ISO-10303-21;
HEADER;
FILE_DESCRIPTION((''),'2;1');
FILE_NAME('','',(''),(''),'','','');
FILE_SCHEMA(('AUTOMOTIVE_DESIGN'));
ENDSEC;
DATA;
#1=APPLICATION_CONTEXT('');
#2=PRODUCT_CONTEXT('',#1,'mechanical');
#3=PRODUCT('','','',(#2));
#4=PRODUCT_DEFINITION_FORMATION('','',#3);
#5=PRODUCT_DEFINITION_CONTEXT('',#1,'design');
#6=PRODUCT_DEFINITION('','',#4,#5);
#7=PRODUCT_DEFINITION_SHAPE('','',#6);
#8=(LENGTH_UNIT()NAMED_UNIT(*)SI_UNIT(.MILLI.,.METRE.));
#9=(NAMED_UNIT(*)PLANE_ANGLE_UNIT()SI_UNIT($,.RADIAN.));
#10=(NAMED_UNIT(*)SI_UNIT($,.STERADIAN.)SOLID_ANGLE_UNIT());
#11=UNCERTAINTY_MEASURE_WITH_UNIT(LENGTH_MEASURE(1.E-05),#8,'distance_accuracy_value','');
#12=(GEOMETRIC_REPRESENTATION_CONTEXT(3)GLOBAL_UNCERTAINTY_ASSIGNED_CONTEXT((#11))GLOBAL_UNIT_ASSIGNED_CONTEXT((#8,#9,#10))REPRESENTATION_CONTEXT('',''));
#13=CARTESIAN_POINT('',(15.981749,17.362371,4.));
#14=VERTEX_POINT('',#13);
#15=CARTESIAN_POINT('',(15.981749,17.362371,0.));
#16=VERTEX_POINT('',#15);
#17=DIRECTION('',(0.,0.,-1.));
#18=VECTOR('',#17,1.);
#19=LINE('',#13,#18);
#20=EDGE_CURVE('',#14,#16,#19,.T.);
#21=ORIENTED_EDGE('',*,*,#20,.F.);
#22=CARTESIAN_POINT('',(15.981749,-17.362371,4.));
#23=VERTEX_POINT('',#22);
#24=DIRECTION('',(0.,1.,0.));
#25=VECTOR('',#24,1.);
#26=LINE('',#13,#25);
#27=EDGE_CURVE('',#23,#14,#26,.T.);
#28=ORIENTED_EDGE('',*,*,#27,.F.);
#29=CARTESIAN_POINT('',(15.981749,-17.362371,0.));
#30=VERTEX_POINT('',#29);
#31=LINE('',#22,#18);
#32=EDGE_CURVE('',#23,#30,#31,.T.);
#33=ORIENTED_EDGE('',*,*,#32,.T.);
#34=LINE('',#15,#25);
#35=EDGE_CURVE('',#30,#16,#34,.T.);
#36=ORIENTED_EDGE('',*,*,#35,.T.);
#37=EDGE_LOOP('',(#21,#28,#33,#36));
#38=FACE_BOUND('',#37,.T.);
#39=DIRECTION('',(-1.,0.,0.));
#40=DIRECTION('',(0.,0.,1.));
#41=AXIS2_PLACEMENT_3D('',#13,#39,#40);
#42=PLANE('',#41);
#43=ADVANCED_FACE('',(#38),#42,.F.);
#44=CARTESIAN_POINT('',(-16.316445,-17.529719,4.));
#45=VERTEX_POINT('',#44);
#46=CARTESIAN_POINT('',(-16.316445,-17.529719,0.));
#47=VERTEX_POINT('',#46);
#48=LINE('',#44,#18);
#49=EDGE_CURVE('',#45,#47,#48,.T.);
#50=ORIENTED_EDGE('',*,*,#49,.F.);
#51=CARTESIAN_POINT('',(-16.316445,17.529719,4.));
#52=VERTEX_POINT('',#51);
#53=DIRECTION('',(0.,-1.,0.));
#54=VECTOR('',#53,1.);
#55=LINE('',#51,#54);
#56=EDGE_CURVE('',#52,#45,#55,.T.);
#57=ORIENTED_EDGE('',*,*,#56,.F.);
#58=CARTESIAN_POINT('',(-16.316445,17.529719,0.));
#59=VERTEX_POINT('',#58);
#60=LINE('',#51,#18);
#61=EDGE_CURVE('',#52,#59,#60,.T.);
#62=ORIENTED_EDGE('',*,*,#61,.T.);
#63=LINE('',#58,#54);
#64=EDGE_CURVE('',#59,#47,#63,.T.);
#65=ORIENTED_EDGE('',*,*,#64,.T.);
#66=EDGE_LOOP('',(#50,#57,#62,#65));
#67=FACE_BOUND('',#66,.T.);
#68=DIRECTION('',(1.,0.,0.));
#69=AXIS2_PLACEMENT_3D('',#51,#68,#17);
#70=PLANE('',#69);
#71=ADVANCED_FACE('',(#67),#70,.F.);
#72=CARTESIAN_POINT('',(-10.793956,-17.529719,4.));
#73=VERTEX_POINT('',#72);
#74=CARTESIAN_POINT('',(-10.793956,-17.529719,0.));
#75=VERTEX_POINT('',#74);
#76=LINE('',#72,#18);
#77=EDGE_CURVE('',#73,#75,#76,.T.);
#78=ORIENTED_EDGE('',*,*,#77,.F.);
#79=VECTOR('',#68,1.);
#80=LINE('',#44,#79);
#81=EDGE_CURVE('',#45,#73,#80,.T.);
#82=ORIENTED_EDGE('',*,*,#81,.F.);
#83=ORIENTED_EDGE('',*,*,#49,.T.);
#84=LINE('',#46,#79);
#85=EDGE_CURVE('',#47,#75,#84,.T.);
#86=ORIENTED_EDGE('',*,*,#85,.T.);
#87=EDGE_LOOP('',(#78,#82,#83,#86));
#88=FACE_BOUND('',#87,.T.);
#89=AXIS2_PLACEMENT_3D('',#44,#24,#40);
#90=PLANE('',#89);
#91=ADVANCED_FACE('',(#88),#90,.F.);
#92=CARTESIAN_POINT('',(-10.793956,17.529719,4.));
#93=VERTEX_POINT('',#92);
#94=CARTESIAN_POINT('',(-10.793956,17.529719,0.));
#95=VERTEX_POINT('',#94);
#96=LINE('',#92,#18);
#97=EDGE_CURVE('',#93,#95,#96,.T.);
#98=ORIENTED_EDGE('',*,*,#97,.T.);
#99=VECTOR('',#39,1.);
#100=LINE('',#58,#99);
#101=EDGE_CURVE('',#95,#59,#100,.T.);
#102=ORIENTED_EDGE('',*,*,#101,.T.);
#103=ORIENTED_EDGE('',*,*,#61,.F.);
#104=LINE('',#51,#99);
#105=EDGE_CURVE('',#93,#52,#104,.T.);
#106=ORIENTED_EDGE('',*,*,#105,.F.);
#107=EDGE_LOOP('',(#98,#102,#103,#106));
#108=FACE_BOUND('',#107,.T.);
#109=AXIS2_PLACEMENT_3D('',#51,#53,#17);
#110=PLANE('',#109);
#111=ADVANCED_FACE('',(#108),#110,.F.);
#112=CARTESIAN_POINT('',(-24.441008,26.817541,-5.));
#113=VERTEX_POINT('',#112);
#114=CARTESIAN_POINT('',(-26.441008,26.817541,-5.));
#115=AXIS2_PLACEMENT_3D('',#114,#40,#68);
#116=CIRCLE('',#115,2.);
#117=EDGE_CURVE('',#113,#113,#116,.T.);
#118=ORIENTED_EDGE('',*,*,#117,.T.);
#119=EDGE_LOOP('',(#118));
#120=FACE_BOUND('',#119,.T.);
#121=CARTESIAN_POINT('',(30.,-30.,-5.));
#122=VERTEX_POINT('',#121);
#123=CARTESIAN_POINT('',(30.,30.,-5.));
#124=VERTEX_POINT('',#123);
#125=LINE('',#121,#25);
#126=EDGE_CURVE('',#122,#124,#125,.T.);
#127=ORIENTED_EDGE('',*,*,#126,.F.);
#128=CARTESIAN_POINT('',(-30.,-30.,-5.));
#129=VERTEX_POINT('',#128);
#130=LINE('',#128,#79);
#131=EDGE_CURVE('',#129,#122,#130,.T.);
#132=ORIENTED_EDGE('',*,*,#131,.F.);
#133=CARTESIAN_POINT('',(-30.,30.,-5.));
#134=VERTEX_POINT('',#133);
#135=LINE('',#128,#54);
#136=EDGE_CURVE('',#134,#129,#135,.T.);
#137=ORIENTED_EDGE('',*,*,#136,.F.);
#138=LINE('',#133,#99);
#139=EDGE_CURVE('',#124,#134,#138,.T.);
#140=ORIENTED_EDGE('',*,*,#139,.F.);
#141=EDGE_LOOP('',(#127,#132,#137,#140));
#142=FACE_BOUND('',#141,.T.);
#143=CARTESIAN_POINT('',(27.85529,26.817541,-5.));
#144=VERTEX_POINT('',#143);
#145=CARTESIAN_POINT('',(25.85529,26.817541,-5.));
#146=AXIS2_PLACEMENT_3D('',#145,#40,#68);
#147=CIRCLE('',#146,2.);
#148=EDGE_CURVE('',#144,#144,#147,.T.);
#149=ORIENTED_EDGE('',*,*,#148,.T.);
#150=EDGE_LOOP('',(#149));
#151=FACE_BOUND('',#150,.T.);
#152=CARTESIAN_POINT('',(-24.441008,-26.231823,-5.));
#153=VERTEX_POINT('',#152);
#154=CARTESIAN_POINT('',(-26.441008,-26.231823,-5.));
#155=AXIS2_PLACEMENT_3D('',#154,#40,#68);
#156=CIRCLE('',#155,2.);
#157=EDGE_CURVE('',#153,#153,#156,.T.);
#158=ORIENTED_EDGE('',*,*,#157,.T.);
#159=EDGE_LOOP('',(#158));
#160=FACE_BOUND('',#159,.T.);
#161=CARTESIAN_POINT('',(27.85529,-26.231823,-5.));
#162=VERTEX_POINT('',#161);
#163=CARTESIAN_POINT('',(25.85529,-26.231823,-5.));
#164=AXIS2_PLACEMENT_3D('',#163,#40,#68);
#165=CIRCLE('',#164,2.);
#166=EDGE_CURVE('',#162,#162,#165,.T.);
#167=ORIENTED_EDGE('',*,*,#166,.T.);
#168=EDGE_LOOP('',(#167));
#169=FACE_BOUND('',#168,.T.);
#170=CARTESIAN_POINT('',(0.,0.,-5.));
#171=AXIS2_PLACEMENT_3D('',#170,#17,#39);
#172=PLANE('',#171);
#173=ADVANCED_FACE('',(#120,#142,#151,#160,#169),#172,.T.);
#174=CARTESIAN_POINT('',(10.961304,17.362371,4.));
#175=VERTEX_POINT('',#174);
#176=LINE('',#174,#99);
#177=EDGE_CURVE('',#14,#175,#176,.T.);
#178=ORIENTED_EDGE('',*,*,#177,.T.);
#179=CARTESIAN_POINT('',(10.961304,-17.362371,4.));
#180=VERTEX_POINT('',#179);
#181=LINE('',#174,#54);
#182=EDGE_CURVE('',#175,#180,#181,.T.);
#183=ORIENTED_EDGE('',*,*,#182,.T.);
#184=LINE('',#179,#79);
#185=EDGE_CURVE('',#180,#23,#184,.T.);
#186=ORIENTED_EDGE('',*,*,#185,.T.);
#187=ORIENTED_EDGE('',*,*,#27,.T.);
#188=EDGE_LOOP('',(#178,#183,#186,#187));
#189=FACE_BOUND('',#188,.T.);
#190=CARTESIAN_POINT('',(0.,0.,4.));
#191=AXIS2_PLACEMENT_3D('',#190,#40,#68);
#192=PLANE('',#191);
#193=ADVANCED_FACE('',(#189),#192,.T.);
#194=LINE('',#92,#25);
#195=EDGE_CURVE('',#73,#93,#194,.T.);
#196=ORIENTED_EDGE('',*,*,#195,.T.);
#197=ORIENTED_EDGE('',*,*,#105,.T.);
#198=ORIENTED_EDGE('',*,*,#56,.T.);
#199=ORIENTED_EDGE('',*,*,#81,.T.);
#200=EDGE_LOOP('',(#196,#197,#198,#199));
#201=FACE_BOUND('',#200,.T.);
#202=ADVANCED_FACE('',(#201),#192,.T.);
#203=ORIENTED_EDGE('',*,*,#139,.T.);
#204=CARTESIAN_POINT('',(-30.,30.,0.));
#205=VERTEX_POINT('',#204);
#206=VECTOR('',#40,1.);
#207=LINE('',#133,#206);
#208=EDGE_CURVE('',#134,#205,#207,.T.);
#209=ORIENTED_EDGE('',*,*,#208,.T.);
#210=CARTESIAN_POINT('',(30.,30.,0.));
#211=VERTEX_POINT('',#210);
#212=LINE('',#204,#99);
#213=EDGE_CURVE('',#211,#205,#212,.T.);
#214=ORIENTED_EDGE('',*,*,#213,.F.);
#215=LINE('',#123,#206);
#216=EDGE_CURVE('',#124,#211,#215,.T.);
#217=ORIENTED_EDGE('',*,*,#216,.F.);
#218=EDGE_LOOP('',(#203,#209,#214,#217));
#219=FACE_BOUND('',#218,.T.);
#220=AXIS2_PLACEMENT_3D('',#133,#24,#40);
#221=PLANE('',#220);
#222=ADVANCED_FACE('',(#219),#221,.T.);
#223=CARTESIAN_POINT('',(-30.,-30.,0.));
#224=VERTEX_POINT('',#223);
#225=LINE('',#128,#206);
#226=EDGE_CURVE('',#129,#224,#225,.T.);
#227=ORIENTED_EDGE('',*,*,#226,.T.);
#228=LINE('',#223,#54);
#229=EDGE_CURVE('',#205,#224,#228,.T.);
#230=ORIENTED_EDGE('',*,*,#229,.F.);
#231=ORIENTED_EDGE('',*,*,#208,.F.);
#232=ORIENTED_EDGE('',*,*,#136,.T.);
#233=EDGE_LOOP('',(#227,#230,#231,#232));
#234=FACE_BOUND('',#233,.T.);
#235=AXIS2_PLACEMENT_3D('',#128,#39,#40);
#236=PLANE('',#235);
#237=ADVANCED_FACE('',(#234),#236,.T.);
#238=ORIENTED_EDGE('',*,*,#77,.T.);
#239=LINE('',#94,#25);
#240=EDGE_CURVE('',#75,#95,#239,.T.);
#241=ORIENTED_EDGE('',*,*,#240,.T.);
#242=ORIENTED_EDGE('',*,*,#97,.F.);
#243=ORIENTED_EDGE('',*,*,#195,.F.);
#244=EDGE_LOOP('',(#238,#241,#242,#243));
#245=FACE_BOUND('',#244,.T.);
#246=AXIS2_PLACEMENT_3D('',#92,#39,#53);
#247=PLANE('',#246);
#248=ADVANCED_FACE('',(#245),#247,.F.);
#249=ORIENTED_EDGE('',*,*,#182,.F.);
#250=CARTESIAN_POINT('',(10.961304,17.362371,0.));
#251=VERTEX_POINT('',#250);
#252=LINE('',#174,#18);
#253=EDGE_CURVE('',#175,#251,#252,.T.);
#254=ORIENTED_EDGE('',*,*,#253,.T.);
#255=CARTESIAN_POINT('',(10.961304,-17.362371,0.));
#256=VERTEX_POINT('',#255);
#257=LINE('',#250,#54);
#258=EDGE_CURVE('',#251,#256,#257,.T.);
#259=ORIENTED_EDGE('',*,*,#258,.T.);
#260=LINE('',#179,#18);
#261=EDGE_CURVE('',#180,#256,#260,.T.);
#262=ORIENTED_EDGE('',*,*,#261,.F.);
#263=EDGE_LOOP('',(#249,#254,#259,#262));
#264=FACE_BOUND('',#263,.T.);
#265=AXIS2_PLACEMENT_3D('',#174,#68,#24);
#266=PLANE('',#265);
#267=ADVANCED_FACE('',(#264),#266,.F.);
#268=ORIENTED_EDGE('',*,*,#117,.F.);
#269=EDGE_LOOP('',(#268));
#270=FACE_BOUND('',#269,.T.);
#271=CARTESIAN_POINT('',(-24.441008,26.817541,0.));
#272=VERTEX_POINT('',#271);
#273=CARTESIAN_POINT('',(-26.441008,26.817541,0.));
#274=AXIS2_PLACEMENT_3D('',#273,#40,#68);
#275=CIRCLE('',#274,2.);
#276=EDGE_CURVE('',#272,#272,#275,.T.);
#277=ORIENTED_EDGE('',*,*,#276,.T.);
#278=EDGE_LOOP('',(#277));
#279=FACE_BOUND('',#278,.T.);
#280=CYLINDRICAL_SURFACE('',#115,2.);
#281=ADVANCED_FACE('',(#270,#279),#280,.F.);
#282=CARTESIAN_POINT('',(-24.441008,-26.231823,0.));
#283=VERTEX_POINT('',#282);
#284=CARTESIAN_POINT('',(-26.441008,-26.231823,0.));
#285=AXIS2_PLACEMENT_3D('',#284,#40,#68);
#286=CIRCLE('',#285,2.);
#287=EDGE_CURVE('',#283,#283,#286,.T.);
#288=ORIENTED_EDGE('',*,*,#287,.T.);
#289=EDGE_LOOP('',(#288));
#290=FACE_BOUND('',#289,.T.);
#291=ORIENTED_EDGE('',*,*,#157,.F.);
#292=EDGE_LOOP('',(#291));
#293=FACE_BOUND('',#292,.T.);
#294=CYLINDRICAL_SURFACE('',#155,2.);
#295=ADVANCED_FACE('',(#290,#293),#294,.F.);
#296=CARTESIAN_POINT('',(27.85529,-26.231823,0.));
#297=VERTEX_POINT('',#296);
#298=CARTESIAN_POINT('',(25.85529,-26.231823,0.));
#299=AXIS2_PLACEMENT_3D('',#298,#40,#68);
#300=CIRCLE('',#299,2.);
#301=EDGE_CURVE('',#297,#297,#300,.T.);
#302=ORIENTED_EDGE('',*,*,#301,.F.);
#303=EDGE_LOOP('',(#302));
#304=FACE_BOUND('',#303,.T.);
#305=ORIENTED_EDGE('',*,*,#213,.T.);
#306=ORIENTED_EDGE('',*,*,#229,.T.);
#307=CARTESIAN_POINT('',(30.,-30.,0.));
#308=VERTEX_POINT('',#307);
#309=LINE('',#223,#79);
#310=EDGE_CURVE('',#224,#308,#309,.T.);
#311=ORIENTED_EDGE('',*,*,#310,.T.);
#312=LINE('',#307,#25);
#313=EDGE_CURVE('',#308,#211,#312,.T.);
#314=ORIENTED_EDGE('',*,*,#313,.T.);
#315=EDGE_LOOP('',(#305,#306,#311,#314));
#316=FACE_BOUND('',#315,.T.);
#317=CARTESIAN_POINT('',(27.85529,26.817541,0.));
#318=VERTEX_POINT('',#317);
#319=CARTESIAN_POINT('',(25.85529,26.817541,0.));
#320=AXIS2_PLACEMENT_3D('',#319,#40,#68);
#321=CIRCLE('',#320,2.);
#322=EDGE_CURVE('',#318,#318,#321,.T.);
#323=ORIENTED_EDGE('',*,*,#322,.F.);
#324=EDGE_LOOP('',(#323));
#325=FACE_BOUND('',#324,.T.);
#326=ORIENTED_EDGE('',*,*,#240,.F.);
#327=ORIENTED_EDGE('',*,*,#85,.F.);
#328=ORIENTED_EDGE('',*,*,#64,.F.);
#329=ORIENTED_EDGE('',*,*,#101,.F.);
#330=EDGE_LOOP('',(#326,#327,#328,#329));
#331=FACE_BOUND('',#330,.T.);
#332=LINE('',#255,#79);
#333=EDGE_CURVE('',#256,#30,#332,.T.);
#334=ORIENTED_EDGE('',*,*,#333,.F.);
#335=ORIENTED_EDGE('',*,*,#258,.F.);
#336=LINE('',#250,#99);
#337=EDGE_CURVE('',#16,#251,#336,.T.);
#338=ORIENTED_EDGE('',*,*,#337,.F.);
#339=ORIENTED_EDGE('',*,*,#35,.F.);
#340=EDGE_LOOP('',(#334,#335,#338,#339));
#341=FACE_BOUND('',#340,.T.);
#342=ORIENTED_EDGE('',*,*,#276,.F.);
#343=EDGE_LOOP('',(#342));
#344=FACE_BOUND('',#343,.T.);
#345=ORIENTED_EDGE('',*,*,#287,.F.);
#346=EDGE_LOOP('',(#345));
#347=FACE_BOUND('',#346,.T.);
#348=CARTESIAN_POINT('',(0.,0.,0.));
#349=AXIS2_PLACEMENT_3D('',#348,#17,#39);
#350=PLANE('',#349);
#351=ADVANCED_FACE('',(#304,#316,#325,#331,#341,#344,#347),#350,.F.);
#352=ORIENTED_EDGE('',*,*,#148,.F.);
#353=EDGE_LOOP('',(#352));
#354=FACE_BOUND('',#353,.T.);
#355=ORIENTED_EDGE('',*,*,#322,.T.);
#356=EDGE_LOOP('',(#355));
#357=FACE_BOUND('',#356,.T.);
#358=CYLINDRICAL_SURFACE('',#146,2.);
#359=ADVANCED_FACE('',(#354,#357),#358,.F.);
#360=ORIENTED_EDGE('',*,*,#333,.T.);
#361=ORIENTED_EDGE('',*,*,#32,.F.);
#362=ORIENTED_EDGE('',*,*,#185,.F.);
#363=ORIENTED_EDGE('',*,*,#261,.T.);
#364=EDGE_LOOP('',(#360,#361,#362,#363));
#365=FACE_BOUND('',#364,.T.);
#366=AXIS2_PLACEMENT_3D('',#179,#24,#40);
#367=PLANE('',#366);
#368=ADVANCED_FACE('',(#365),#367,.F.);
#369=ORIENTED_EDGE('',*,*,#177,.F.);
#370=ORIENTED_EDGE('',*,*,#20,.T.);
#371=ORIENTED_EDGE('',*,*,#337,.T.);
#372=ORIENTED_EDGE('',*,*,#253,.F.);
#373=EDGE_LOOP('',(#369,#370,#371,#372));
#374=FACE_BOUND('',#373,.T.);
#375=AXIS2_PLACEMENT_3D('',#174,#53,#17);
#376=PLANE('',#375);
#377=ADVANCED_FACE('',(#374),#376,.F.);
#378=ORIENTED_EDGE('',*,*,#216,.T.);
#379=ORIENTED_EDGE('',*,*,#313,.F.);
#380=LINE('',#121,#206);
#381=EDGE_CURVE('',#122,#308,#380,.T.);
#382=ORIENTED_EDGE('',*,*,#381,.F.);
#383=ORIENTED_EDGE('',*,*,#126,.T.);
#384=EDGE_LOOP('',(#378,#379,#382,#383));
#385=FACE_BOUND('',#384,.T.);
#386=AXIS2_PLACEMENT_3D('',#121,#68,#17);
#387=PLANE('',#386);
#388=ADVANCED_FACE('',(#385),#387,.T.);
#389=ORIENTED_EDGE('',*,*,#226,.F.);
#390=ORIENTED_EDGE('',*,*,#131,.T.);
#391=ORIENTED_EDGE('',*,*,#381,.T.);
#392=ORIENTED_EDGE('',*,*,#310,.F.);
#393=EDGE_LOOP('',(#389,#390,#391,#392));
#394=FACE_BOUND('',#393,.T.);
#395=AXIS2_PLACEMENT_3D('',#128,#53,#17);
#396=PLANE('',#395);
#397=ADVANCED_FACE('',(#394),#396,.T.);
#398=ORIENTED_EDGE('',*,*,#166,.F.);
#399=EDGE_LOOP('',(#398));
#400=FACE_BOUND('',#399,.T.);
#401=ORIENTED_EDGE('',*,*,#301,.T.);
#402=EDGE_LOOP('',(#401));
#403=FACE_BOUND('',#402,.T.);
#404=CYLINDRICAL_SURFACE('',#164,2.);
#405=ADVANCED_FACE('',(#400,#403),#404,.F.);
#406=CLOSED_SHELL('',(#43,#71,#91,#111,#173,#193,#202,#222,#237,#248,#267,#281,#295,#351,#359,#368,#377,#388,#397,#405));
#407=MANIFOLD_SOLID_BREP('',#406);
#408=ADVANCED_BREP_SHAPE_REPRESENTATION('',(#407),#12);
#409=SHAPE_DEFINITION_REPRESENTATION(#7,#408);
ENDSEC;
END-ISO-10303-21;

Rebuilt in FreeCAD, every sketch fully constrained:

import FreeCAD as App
import Part
import Sketcher
Q = App.Units.Quantity

doc = App.newDocument("Part")
params = doc.addObject("Spreadsheet::Sheet", "Params")
for row, (alias, value) in enumerate([
    ("sketch1_width", "60 mm"),
    ("pad1_length", "5 mm"),
    ("sketch2_diameter", "4 mm"),
    ("sketch3_diameter", "4 mm"),
    ("sketch4_diameter", "4 mm"),
    ("sketch5_diameter", "4 mm"),
    ("pad2_length", "4 mm"),
    ("pad3_length", "4 mm"),
], start=1):
    params.set(f"A{row}", alias)
    params.set(f"B{row}", "=" + value)
    params.setAlias(f"B{row}", alias)

body = doc.addObject("PartDesign::Body", "Body")

sketch1 = body.newObject("Sketcher::SketchObject", "Sketch")
sketch1.AttachmentSupport = (doc.getObject("XY_Plane"), [""])
sketch1.MapMode = "FlatFace"
sketch1.addGeometry(Part.LineSegment(App.Vector(-30, 30, 0), App.Vector(-30, -30, 0)), False)
sketch1.addGeometry(Part.LineSegment(App.Vector(-30, -30, 0), App.Vector(30, -30, 0)), False)
sketch1.addGeometry(Part.LineSegment(App.Vector(30, -30, 0), App.Vector(30, 30, 0)), False)
sketch1.addGeometry(Part.LineSegment(App.Vector(30, 30, 0), App.Vector(-30, 30, 0)), False)
sketch1.addConstraint(Sketcher.Constraint("Coincident", 0, 2, 1, 1))
sketch1.addConstraint(Sketcher.Constraint("Coincident", 1, 2, 2, 1))
sketch1.addConstraint(Sketcher.Constraint("Coincident", 2, 2, 3, 1))
sketch1.addConstraint(Sketcher.Constraint("Coincident", 3, 2, 0, 1))
sketch1.addConstraint(Sketcher.Constraint("Vertical", 0))
sketch1.addConstraint(Sketcher.Constraint("Horizontal", 1))
sketch1.addConstraint(Sketcher.Constraint("Vertical", 2))
sketch1.addConstraint(Sketcher.Constraint("Horizontal", 3))
sketch1.addConstraint(Sketcher.Constraint("Symmetric", 0, 2, 2, 2, -1, 1))
sketch1.addConstraint(Sketcher.Constraint("Equal", 3, 0))
sketch1.addConstraint(Sketcher.Constraint("DistanceX", 1, 1, 1, 2, Q("60 mm")))
sketch1.setExpression("Constraints[10]", "Params.sketch1_width")
pad1 = body.newObject("PartDesign::Pad", "Pad")
pad1.Profile = sketch1
pad1.setExpression("Length", "Params.pad1_length")
pad1.Reversed = True

sketch2 = body.newObject("Sketcher::SketchObject", "Sketch001")
sketch2.AttachmentSupport = (doc.getObject("XY_Plane"), [""])
sketch2.MapMode = "FlatFace"
sketch2.addGeometry(Part.Circle(App.Vector(-26.4, 26.8, 0), App.Vector(0, 0, 1), 2), False)
sketch2.addConstraint(Sketcher.Constraint("Diameter", 0, Q("4 mm")))
sketch2.addConstraint(Sketcher.Constraint("DistanceX", 0, 3, -1, 1, Q("26.441008 mm")))
sketch2.addConstraint(Sketcher.Constraint("DistanceY", -1, 1, 0, 3, Q("26.817541 mm")))
sketch2.setExpression("Constraints[0]", "Params.sketch2_diameter")
pocket1 = body.newObject("PartDesign::Pocket", "Pocket")
pocket1.Profile = sketch2
pocket1.Type = "ThroughAll"

sketch3 = body.newObject("Sketcher::SketchObject", "Sketch002")
sketch3.AttachmentSupport = (doc.getObject("XY_Plane"), [""])
sketch3.MapMode = "FlatFace"
sketch3.addGeometry(Part.Circle(App.Vector(-26.4, -26.2, 0), App.Vector(0, 0, 1), 2), False)
sketch3.addConstraint(Sketcher.Constraint("Diameter", 0, Q("4 mm")))
sketch3.addConstraint(Sketcher.Constraint("DistanceX", 0, 3, -1, 1, Q("26.441008 mm")))
sketch3.addConstraint(Sketcher.Constraint("DistanceY", 0, 3, -1, 1, Q("26.231823 mm")))
sketch3.setExpression("Constraints[0]", "Params.sketch3_diameter")
pocket2 = body.newObject("PartDesign::Pocket", "Pocket001")
pocket2.Profile = sketch3
pocket2.Type = "ThroughAll"

sketch4 = body.newObject("Sketcher::SketchObject", "Sketch003")
sketch4.AttachmentSupport = (doc.getObject("XY_Plane"), [""])
sketch4.MapMode = "FlatFace"
sketch4.addGeometry(Part.Circle(App.Vector(25.9, 26.8, 0), App.Vector(0, 0, 1), 2), False)
sketch4.addConstraint(Sketcher.Constraint("Diameter", 0, Q("4 mm")))
sketch4.addConstraint(Sketcher.Constraint("DistanceX", -1, 1, 0, 3, Q("25.85529 mm")))
sketch4.addConstraint(Sketcher.Constraint("DistanceY", -1, 1, 0, 3, Q("26.817541 mm")))
sketch4.setExpression("Constraints[0]", "Params.sketch4_diameter")
pocket3 = body.newObject("PartDesign::Pocket", "Pocket002")
pocket3.Profile = sketch4
pocket3.Type = "ThroughAll"

sketch5 = body.newObject("Sketcher::SketchObject", "Sketch004")
sketch5.AttachmentSupport = (doc.getObject("XY_Plane"), [""])
sketch5.MapMode = "FlatFace"
sketch5.addGeometry(Part.Circle(App.Vector(25.9, -26.2, 0), App.Vector(0, 0, 1), 2), False)
sketch5.addConstraint(Sketcher.Constraint("Diameter", 0, Q("4 mm")))
sketch5.addConstraint(Sketcher.Constraint("DistanceX", -1, 1, 0, 3, Q("25.85529 mm")))
sketch5.addConstraint(Sketcher.Constraint("DistanceY", 0, 3, -1, 1, Q("26.231823 mm")))
sketch5.setExpression("Constraints[0]", "Params.sketch5_diameter")
pocket4 = body.newObject("PartDesign::Pocket", "Pocket003")
pocket4.Profile = sketch5
pocket4.Type = "ThroughAll"

sketch6 = body.newObject("Sketcher::SketchObject", "Sketch005")
sketch6.AttachmentSupport = (doc.getObject("XY_Plane"), [""])
sketch6.MapMode = "FlatFace"
sketch6.addGeometry(Part.LineSegment(App.Vector(-16, 18, 0), App.Vector(-16, -18, 0)), False)
sketch6.addGeometry(Part.LineSegment(App.Vector(-16, -18, 0), App.Vector(-11, -18, 0)), False)
sketch6.addGeometry(Part.LineSegment(App.Vector(-11, -18, 0), App.Vector(-11, 18, 0)), False)
sketch6.addGeometry(Part.LineSegment(App.Vector(-11, 18, 0), App.Vector(-16, 18, 0)), False)
sketch6.addConstraint(Sketcher.Constraint("Coincident", 0, 2, 1, 1))
sketch6.addConstraint(Sketcher.Constraint("Coincident", 1, 2, 2, 1))
sketch6.addConstraint(Sketcher.Constraint("Coincident", 2, 2, 3, 1))
sketch6.addConstraint(Sketcher.Constraint("Coincident", 3, 2, 0, 1))
sketch6.addConstraint(Sketcher.Constraint("Vertical", 0))
sketch6.addConstraint(Sketcher.Constraint("Horizontal", 1))
sketch6.addConstraint(Sketcher.Constraint("Vertical", 2))
sketch6.addConstraint(Sketcher.Constraint("Horizontal", 3))
sketch6.addConstraint(Sketcher.Constraint("DistanceX", 1, 1, 1, 2, Q("5.522489 mm")))
sketch6.addConstraint(Sketcher.Constraint("DistanceY", 0, 2, 0, 1, Q("35.059438 mm")))
sketch6.addConstraint(Sketcher.Constraint("DistanceY", 0, 2, -1, 1, Q("17.529719 mm")))
sketch6.addConstraint(Sketcher.Constraint("DistanceX", 0, 2, -1, 1, Q("16.316445 mm")))
pad2 = body.newObject("PartDesign::Pad", "Pad001")
pad2.Profile = sketch6
pad2.setExpression("Length", "Params.pad2_length")

sketch7 = body.newObject("Sketcher::SketchObject", "Sketch006")
sketch7.AttachmentSupport = (doc.getObject("XY_Plane"), [""])
sketch7.MapMode = "FlatFace"
sketch7.addGeometry(Part.LineSegment(App.Vector(11, 17, 0), App.Vector(11, -17, 0)), False)
sketch7.addGeometry(Part.LineSegment(App.Vector(11, -17, 0), App.Vector(16, -17, 0)), False)
sketch7.addGeometry(Part.LineSegment(App.Vector(16, -17, 0), App.Vector(16, 17, 0)), False)
sketch7.addGeometry(Part.LineSegment(App.Vector(16, 17, 0), App.Vector(11, 17, 0)), False)
sketch7.addConstraint(Sketcher.Constraint("Coincident", 0, 2, 1, 1))
sketch7.addConstraint(Sketcher.Constraint("Coincident", 1, 2, 2, 1))
sketch7.addConstraint(Sketcher.Constraint("Coincident", 2, 2, 3, 1))
sketch7.addConstraint(Sketcher.Constraint("Coincident", 3, 2, 0, 1))
sketch7.addConstraint(Sketcher.Constraint("Vertical", 0))
sketch7.addConstraint(Sketcher.Constraint("Horizontal", 1))
sketch7.addConstraint(Sketcher.Constraint("Vertical", 2))
sketch7.addConstraint(Sketcher.Constraint("Horizontal", 3))
sketch7.addConstraint(Sketcher.Constraint("DistanceY", 0, 2, 0, 1, Q("34.724742 mm")))
sketch7.addConstraint(Sketcher.Constraint("DistanceX", 1, 1, 1, 2, Q("5.020445 mm")))
sketch7.addConstraint(Sketcher.Constraint("DistanceY", 0, 2, -1, 1, Q("17.362371 mm")))
sketch7.addConstraint(Sketcher.Constraint("DistanceX", -1, 1, 1, 2, Q("15.981749 mm")))
pad3 = body.newObject("PartDesign::Pad", "Pad002")
pad3.Profile = sketch7
pad3.setExpression("Length", "Params.pad3_length")

doc.recompute()
